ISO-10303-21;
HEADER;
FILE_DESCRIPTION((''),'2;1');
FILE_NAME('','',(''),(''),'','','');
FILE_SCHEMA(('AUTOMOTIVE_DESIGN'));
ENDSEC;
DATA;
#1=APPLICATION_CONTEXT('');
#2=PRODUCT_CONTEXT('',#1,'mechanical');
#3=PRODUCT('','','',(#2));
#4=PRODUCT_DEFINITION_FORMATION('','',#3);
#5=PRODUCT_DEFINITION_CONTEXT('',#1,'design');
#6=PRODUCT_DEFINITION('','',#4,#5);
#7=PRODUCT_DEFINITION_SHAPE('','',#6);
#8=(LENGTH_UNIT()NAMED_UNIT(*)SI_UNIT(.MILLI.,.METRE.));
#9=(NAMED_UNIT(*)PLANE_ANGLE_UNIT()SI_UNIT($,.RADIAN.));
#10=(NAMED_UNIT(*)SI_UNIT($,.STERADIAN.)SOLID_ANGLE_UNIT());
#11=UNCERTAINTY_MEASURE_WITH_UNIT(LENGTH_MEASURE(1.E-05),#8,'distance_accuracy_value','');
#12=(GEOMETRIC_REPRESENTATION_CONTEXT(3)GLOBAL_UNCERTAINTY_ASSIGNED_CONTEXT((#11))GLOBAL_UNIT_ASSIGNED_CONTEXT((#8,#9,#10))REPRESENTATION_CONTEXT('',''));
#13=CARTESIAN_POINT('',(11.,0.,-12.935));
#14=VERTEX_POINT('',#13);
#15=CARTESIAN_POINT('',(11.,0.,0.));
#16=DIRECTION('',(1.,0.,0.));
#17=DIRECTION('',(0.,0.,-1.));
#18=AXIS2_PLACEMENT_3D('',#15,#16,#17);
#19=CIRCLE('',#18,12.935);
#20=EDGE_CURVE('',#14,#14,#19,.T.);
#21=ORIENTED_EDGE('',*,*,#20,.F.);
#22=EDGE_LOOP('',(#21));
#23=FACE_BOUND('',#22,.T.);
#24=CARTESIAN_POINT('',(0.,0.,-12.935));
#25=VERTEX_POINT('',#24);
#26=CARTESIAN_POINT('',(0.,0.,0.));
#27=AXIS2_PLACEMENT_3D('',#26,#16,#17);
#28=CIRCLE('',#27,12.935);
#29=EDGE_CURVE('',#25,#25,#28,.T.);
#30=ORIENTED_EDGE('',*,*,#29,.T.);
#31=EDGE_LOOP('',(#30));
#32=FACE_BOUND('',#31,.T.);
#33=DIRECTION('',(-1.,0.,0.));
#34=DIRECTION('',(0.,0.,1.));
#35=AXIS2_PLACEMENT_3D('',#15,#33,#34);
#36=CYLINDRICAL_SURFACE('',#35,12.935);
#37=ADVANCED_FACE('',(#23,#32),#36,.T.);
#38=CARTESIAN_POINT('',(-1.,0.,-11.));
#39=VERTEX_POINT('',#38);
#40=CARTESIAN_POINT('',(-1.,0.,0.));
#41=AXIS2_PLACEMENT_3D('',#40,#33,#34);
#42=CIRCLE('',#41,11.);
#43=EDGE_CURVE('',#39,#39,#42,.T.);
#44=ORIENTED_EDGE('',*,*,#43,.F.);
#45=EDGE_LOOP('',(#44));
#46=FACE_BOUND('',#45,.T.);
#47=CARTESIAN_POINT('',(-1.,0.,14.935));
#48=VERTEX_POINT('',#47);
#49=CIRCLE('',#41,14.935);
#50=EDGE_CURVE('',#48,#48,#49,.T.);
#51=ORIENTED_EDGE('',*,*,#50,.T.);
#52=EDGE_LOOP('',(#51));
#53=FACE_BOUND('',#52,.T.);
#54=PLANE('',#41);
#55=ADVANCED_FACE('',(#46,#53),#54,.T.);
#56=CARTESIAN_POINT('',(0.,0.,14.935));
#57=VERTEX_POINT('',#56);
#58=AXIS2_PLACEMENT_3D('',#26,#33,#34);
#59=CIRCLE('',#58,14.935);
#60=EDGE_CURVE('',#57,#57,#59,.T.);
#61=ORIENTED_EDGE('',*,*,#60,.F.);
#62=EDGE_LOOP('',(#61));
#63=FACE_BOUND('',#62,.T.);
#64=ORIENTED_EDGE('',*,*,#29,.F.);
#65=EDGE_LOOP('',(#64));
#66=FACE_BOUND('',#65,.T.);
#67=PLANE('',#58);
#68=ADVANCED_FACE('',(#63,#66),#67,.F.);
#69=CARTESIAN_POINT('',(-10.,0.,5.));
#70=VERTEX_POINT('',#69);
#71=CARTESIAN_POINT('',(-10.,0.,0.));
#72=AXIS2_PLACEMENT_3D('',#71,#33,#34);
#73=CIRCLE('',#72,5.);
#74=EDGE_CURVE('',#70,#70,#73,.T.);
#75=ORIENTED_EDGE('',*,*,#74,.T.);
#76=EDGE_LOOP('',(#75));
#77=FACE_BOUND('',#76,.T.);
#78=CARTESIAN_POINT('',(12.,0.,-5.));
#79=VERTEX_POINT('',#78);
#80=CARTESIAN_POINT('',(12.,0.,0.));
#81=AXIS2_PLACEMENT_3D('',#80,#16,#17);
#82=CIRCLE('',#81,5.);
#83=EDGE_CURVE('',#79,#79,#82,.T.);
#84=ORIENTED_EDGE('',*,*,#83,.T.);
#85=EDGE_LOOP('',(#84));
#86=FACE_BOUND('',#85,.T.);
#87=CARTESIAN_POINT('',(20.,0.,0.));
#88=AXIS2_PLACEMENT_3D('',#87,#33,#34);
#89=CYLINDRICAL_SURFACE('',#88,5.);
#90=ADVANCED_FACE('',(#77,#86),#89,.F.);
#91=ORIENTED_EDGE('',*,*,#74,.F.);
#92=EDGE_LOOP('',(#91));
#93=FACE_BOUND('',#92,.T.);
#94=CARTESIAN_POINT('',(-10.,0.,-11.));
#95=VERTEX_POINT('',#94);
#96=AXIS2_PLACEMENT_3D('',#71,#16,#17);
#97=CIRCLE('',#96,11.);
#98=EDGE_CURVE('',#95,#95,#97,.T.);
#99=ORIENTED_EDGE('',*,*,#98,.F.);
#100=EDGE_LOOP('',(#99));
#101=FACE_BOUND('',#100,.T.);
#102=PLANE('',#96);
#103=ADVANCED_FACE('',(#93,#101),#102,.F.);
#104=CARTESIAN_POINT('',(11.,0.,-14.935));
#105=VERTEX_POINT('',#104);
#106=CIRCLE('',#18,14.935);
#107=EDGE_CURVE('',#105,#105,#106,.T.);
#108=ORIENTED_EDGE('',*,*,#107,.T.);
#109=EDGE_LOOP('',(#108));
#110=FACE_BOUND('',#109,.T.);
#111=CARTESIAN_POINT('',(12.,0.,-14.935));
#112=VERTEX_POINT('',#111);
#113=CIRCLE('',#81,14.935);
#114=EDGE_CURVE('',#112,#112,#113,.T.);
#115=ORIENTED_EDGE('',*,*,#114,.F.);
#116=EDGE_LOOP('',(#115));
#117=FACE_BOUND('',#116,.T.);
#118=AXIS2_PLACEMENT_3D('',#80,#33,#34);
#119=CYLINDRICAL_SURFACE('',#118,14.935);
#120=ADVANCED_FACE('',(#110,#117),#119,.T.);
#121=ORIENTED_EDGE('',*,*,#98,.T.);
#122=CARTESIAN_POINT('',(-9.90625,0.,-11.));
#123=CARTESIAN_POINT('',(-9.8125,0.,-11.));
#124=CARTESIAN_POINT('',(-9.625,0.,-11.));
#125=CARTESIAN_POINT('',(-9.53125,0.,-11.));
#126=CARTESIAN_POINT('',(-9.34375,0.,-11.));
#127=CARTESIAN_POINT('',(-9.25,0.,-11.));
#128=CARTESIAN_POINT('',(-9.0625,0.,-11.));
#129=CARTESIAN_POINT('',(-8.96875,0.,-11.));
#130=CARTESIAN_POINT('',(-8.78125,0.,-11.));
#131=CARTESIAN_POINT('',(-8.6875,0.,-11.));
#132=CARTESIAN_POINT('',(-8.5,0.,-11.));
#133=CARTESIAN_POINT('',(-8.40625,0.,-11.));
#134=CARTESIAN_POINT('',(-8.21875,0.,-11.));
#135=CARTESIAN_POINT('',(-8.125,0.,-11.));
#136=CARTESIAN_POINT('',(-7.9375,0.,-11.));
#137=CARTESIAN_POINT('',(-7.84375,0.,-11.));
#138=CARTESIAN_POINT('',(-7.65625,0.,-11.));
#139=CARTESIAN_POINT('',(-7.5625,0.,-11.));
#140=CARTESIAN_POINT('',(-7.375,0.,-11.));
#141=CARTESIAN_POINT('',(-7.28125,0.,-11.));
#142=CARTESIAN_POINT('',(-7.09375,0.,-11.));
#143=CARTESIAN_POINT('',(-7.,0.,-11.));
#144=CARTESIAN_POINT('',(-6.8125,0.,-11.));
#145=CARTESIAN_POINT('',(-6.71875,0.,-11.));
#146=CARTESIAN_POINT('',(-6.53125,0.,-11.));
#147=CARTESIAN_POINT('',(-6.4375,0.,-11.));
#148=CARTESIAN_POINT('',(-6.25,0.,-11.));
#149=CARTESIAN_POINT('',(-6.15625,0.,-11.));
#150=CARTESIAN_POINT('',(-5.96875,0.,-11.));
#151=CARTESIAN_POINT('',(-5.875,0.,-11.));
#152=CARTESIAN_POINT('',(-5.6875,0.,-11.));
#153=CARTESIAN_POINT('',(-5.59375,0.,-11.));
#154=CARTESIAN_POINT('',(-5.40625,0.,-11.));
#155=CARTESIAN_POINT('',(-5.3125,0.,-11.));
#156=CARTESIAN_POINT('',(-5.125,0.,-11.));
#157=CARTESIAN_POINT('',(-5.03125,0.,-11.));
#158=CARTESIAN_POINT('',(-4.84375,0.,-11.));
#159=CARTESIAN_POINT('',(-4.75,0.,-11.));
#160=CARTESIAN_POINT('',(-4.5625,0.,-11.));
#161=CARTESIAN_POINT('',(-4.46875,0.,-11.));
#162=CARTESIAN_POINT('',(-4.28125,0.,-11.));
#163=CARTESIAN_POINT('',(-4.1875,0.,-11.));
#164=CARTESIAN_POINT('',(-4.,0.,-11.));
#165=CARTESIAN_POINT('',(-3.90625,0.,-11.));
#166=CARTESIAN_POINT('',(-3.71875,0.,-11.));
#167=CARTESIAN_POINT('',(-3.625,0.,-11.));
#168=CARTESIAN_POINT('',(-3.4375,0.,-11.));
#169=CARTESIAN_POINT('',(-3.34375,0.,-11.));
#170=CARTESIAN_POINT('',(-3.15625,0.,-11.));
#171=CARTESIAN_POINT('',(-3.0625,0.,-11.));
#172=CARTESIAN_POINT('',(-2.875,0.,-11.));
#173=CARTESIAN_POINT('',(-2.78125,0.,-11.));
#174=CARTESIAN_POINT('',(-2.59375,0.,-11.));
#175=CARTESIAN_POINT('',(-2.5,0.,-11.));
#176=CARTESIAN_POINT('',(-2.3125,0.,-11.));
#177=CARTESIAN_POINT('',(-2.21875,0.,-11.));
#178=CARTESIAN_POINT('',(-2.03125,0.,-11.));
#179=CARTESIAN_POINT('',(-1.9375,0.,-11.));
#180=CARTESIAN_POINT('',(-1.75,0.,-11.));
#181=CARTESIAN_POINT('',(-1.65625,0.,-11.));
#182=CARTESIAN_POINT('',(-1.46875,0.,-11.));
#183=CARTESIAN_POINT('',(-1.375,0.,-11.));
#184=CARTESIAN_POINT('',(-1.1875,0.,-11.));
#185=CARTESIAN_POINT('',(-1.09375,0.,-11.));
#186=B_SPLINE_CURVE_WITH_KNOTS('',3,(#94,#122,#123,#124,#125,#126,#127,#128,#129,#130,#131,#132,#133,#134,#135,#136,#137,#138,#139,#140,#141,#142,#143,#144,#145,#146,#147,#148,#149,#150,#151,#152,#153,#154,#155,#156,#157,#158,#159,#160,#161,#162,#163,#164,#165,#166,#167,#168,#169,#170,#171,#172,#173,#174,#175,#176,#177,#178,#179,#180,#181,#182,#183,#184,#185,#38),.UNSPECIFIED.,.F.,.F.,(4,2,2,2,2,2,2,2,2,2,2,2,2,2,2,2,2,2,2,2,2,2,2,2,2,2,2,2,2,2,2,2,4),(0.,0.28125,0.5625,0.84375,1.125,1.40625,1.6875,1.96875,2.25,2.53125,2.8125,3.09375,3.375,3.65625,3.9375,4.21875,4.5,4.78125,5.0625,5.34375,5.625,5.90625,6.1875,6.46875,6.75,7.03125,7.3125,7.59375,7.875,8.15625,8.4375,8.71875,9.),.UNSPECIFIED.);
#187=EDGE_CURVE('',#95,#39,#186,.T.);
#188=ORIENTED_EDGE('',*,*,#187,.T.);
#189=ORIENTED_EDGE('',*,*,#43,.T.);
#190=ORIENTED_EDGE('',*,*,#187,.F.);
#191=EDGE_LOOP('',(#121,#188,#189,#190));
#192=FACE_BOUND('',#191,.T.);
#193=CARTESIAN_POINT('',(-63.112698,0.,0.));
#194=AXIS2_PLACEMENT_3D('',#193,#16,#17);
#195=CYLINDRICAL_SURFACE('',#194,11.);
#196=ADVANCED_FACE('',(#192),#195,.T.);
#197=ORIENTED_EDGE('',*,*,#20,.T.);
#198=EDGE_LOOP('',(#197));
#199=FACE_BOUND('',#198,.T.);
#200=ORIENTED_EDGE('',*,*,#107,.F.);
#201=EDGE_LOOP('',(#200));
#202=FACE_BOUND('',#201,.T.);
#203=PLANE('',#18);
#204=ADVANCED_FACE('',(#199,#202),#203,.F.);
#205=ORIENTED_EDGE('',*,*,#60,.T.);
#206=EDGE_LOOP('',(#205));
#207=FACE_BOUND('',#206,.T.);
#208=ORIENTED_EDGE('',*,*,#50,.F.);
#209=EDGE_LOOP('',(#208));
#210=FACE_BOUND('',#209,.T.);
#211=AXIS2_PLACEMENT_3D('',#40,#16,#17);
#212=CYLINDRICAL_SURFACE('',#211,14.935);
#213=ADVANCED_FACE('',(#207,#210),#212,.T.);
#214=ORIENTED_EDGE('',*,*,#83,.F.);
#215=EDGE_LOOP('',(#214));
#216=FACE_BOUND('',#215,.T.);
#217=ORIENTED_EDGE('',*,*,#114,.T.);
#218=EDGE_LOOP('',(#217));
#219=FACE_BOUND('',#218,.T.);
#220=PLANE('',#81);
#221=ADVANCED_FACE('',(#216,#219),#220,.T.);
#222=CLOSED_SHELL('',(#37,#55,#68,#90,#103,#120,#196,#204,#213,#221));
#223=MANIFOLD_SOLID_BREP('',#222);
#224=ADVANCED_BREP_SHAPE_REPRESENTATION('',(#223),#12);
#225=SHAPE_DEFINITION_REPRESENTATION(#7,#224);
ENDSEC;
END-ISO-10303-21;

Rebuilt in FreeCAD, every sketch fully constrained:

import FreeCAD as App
import Part
import Sketcher

V = App.Vector

doc = App.newDocument("Part")
params = doc.addObject("Spreadsheet::Sheet", "Params")
for row, (alias, value) in enumerate([
    ("sketch1_diameter", "25.87 mm"),
    ("pad1_length", "11 mm"),
    ("sketch2_diameter", "29.87 mm"),
    ("pad2_length", "1 mm"),
    ("sketch3_diameter", "29.87 mm"),
    ("pad3_length", "1 mm"),
    ("sketch4_diameter", "22 mm"),
    ("pad4_length", "9 mm"),
    ("sketch5_diameter", "10 mm"),
    ("pocket1_length", "30 mm"),
], start=1):
    params.set(f"A{row}", alias)
    params.set(f"B{row}", "=" + value)
    params.setAlias(f"B{row}", alias)

body = doc.addObject("PartDesign::Body", "Body")

sketch1 = body.newObject("Sketcher::SketchObject", "Sketch")
sketch1.AttachmentSupport = (doc.getObject("YZ_Plane"), [""])
sketch1.MapMode = "FlatFace"
sketch1.addGeometry(Part.Circle(V(0, 0, 0), V(0, 0, 1), 13), False)
sketch1.addConstraint(Sketcher.Constraint("Coincident", 0, 3, -1, 1))
sketch1.addConstraint(Sketcher.Constraint("Diameter", 0, 25.87))
sketch1.setExpression("Constraints[1]", "Params.sketch1_diameter")
pad1 = body.newObject("PartDesign::Pad", "Pad")
pad1.Profile = sketch1
pad1.setExpression("Length", "Params.pad1_length")

sketch2 = body.newObject("Sketcher::SketchObject", "Sketch001")
sketch2.AttachmentSupport = (doc.getObject("YZ_Plane"), [""])
sketch2.MapMode = "FlatFace"
sketch2.AttachmentOffset = App.Placement(V(0, 0, 11), App.Rotation())
sketch2.addGeometry(Part.Circle(V(0, 0, 0), V(0, 0, 1), 15), False)
sketch2.addConstraint(Sketcher.Constraint("Coincident", 0, 3, -1, 1))
sketch2.addConstraint(Sketcher.Constraint("Diameter", 0, 29.87))
sketch2.setExpression("Constraints[1]", "Params.sketch2_diameter")
pad2 = body.newObject("PartDesign::Pad", "Pad001")
pad2.Profile = sketch2
pad2.setExpression("Length", "Params.pad2_length")

sketch3 = body.newObject("Sketcher::SketchObject", "Sketch002")
sketch3.AttachmentSupport = (doc.getObject("YZ_Plane"), [""])
sketch3.MapMode = "FlatFace"
sketch3.AttachmentOffset = App.Placement(V(0, 0, -1), App.Rotation())
sketch3.addGeometry(Part.Circle(V(0, 0, 0), V(0, 0, 1), 15), False)
sketch3.addConstraint(Sketcher.Constraint("Coincident", 0, 3, -1, 1))
sketch3.addConstraint(Sketcher.Constraint("Diameter", 0, 29.87))
sketch3.setExpression("Constraints[1]", "Params.sketch3_diameter")
pad3 = body.newObject("PartDesign::Pad", "Pad002")
pad3.Profile = sketch3
pad3.setExpression("Length", "Params.pad3_length")

sketch4 = body.newObject("Sketcher::SketchObject", "Sketch003")
sketch4.AttachmentSupport = (doc.getObject("YZ_Plane"), [""])
sketch4.MapMode = "FlatFace"
sketch4.AttachmentOffset = App.Placement(V(0, 0, -1), App.Rotation())
sketch4.addGeometry(Part.Circle(V(0, 0, 0), V(0, 0, 1), 11), False)
sketch4.addConstraint(Sketcher.Constraint("Coincident", 0, 3, -1, 1))
sketch4.addConstraint(Sketcher.Constraint("Diameter", 0, 22.0))
sketch4.setExpression("Constraints[1]", "Params.sketch4_diameter")
pad4 = body.newObject("PartDesign::Pad", "Pad003")
pad4.Profile = sketch4
pad4.setExpression("Length", "Params.pad4_length")
pad4.Reversed = True

sketch5 = body.newObject("Sketcher::SketchObject", "Sketch004")
sketch5.AttachmentSupport = (doc.getObject("YZ_Plane"), [""])
sketch5.MapMode = "FlatFace"
sketch5.AttachmentOffset = App.Placement(V(0, 0, -10), App.Rotation())
sketch5.addGeometry(Part.Circle(V(0, 0, 0), V(0, 0, 1), 5), False)
sketch5.addConstraint(Sketcher.Constraint("Coincident", 0, 3, -1, 1))
sketch5.addConstraint(Sketcher.Constraint("Diameter", 0, 10.0))
sketch5.setExpression("Constraints[1]", "Params.sketch5_diameter")
pocket1 = body.newObject("PartDesign::Pocket", "Pocket")
pocket1.Profile = sketch5
pocket1.setExpression("Length", "Params.pocket1_length")
pocket1.Reversed = True

doc.recompute()
